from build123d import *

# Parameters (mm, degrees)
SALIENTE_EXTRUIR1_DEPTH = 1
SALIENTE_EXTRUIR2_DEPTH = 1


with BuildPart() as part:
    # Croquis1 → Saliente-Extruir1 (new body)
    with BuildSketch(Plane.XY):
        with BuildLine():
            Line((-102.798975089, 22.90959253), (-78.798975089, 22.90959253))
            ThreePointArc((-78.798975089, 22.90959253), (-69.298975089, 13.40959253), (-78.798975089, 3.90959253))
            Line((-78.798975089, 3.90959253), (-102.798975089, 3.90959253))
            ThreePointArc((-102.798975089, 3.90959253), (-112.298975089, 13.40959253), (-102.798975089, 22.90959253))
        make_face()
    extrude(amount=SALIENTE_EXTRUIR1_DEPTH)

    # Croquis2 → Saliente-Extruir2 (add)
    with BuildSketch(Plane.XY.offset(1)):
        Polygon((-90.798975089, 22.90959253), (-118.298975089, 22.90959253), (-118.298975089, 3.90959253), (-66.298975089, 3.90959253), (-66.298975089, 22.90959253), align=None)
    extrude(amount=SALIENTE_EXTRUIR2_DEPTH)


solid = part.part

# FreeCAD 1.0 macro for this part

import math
import FreeCAD as App
import Part
import Sketcher
from FreeCAD import Vector
Q = App.Units.Quantity


def add_polygon(sketch, points):
    """Adds a closed chain of lines whose ends are joined by coincident constraints."""
    first, n = sketch.GeometryCount, len(points)
    for a, b in zip(points, points[1:] + points[:1]):
        sketch.addGeometry(Part.LineSegment(App.Vector(*a, 0), App.Vector(*b, 0)), False)
    for i in range(n):
        sketch.addConstraint(Sketcher.Constraint("Coincident", first + i, 2, first + (i + 1) % n, 1))

doc = App.newDocument("Part")
body = doc.addObject("PartDesign::Body", "Body")

sketch1 = body.newObject("Sketcher::SketchObject", "Sketch")
sketch1.AttachmentSupport = (doc.getObject("XY_Plane"), [""])
sketch1.MapMode = "FlatFace"
sketch1.addGeometry([
    Part.LineSegment(Vector(-78.798975, 22.909593, 0), Vector(-102.798975, 22.909593, 0)),
    Part.ArcOfCircle(Part.Circle(Vector(-102.798975, 13.409593, 0), Vector(0, 0, 1), 9.5), math.radians(90), math.radians(270)),
    Part.LineSegment(Vector(-102.798975, 3.909593, 0), Vector(-78.798975, 3.909593, 0)),
    Part.ArcOfCircle(Part.Circle(Vector(-78.798975, 13.409593, 0), Vector(0, 0, 1), 9.5), math.radians(-90), math.radians(90)),
], False)
sketch1.addConstraint([
    Sketcher.Constraint("Tangent", 0, 2, 1, 1),
    Sketcher.Constraint("Tangent", 1, 2, 2, 1),
    Sketcher.Constraint("Tangent", 2, 2, 3, 1),
    Sketcher.Constraint("Tangent", 3, 2, 0, 1),
    Sketcher.Constraint("Horizontal", 0),
    Sketcher.Constraint("Horizontal", 2),
    Sketcher.Constraint("Radius", 1, Q("9.5 mm")),
    Sketcher.Constraint("DistanceX", 0, 2, 0, 1, Q("24 mm")),
    Sketcher.Constraint("DistanceX", 1, 3, -1, 1, Q("102.798975 mm")),
    Sketcher.Constraint("DistanceY", -1, 1, 1, 3, Q("13.409593 mm")),
])
pad1 = body.newObject("PartDesign::Pad", "Pad")
pad1.Profile = sketch1
pad1.Length = 1

sketch2 = body.newObject("Sketcher::SketchObject", "Sketch001")
sketch2.AttachmentSupport = (doc.getObject("XY_Plane"), [""])
sketch2.MapMode = "FlatFace"
sketch2.AttachmentOffset = App.Placement(Vector(0, 0, 1), App.Rotation())
add_polygon(sketch2, [(-118.298975, 22.909593), (-118.298975, 3.909593), (-66.298975, 3.909593), (-66.298975, 22.909593)])
sketch2.addConstraint([
    Sketcher.Constraint("Vertical", 0),
    Sketcher.Constraint("Horizontal", 1),
    Sketcher.Constraint("Vertical", 2),
    Sketcher.Constraint("Horizontal", 3),
    Sketcher.Constraint("DistanceX", 1, 1, 1, 2, Q("52 mm")),
    Sketcher.Constraint("DistanceY", 0, 2, 0, 1, Q("19 mm")),
    Sketcher.Constraint("DistanceX", 0, 2, -1, 1, Q("118.298975 mm")),
    Sketcher.Constraint("DistanceY", -1, 1, 0, 2, Q("3.909593 mm")),
])
pad2 = body.newObject("PartDesign::Pad", "Pad001")
pad2.Profile = sketch2
pad2.Length = 1

doc.recompute()
